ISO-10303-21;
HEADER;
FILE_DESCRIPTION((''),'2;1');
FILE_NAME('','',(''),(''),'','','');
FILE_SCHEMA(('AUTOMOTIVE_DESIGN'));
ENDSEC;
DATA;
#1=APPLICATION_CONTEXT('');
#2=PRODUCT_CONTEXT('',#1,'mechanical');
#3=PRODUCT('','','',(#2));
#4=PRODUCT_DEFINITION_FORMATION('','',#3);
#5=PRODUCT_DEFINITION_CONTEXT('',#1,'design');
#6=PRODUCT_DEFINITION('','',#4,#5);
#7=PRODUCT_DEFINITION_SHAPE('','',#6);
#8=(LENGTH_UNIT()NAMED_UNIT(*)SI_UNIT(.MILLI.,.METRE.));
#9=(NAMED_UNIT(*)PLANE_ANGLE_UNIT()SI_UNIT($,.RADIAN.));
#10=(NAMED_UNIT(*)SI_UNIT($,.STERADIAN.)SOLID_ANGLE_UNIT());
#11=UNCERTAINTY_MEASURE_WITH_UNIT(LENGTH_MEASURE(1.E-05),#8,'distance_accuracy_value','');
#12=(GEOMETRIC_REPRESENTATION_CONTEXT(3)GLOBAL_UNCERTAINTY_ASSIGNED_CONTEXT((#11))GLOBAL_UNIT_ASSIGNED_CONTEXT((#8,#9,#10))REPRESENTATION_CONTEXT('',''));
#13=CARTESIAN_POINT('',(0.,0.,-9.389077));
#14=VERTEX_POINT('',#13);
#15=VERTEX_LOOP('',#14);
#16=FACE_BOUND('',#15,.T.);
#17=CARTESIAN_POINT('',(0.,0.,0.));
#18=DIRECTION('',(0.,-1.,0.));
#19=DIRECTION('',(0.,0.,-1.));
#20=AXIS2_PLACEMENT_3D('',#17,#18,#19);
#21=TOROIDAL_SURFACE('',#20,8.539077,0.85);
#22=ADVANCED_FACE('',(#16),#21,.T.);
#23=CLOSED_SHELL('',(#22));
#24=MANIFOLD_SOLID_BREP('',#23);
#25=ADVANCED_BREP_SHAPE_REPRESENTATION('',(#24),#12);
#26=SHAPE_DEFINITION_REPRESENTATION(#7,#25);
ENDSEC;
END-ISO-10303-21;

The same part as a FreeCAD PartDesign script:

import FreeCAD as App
import Part
import Sketcher
from FreeCAD import Vector
Q = App.Units.Quantity

doc = App.newDocument("Part")
body = doc.addObject("PartDesign::Body", "Body")

sketch1 = doc.addObject("Sketcher::SketchObject", "Sketch")
body.addObject(sketch1)
sketch1.AttachmentSupport = (doc.XY_Plane, [""])
sketch1.MapMode = "FlatFace"
sketch1.addGeometry(Part.Circle(Vector(8.5, 0, 0), Vector(0, 0, 1), 0.8), False)
sketch1.addConstraint(Sketcher.Constraint("PointOnObject", 0, 3, -1))
sketch1.addConstraint(Sketcher.Constraint("Diameter", 0, Q("1.7 mm")))
sketch1.addConstraint(Sketcher.Constraint("DistanceX", -1, 1, 0, 3, Q("8.539077 mm")))

sketch2 = doc.addObject("Sketcher::SketchObject", "Sketch001")
body.addObject(sketch2)
sketch2.AttachmentSupport = (doc.XZ_Plane, [""])
sketch2.MapMode = "FlatFace"
sketch2.addGeometry(Part.Circle(Vector(0, 0, 0), Vector(0, 0, 1), 9), False)
sketch2.addConstraint(Sketcher.Constraint("Coincident", 0, 3, -1, 1))
sketch2.addConstraint(Sketcher.Constraint("Diameter", 0, Q("17.078155 mm")))
doc.recompute()

additivepipe = doc.addObject("PartDesign::AdditivePipe", "AdditivePipe")
body.addObject(additivepipe)
additivepipe.Profile = sketch1
additivepipe.Spine = (sketch2, ["Edge1"])

doc.recompute()
